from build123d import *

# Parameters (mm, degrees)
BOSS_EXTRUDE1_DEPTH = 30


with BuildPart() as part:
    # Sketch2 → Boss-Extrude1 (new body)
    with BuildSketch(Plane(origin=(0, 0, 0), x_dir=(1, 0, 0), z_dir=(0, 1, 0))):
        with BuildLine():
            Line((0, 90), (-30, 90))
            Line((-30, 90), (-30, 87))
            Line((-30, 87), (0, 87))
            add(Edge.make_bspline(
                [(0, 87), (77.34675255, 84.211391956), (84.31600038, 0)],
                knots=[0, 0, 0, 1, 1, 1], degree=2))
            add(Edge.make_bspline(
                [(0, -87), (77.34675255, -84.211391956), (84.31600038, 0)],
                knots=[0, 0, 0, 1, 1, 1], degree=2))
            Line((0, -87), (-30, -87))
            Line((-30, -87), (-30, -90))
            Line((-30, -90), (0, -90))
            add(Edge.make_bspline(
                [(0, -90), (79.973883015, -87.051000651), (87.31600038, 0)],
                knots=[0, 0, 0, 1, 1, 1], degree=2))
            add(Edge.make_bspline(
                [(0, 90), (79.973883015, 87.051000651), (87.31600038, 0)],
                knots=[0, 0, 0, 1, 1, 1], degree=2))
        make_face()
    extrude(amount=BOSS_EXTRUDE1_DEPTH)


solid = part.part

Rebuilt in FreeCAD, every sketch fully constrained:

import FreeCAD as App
import Part
import Sketcher

V = App.Vector

doc = App.newDocument("Part")
body = doc.addObject("PartDesign::Body", "Body")

sketch1 = doc.addObject("Sketcher::SketchObject", "Sketch")
body.addObject(sketch1)
sketch1.AttachmentSupport = (doc.XZ_Plane, [""])
sketch1.MapMode = "FlatFace"
sketch1.addGeometry([
    Part.LineSegment(V(0, -90, 0), V(-30, -90, 0)),
    Part.LineSegment(V(-30, -90, 0), V(-30, -87, 0)),
    Part.LineSegment(V(-30, -87, 0), V(0, -87, 0)),
    Part.BSplineCurve([V(0, -87, 0), V(77.346753, -84.211392, 0), V(84.316, 0, 0)], [3, 3], [0, 1], False, 2, [1, 1, 1], False),
    Part.BSplineCurve([V(0, 87, 0), V(77.346753, 84.211392, 0), V(84.316, 0, 0)], [3, 3], [0, 1], False, 2, [1, 1, 1], False),
    Part.LineSegment(V(0, 87, 0), V(-30, 87, 0)),
    Part.LineSegment(V(-30, 87, 0), V(-30, 90, 0)),
    Part.LineSegment(V(-30, 90, 0), V(0, 90, 0)),
    Part.BSplineCurve([V(0, 90, 0), V(79.973883, 87.051001, 0), V(87.316, 0, 0)], [3, 3], [0, 1], False, 2, [1, 1, 1], False),
    Part.BSplineCurve([V(0, -90, 0), V(79.973883, -87.051001, 0), V(87.316, 0, 0)], [3, 3], [0, 1], False, 2, [1, 1, 1], False),
], False)
sketch1.addConstraint([
    Sketcher.Constraint("Block", 3),
    Sketcher.Constraint("Block", 4),
    Sketcher.Constraint("Block", 8),
    Sketcher.Constraint("Block", 9),
    Sketcher.Constraint("Coincident", 0, 2, 1, 1),
    Sketcher.Constraint("Coincident", 1, 2, 2, 1),
    Sketcher.Constraint("Coincident", 2, 2, 3, 1),
    Sketcher.Constraint("Coincident", 4, 1, 5, 1),
    Sketcher.Constraint("Coincident", 5, 2, 6, 1),
    Sketcher.Constraint("Coincident", 6, 2, 7, 1),
    Sketcher.Constraint("Coincident", 7, 2, 8, 1),
    Sketcher.Constraint("Coincident", 9, 1, 0, 1),
    Sketcher.Constraint("Horizontal", 0),
    Sketcher.Constraint("Vertical", 1),
    Sketcher.Constraint("Horizontal", 2),
    Sketcher.Constraint("Horizontal", 5),
    Sketcher.Constraint("Vertical", 6),
    Sketcher.Constraint("Horizontal", 7),
    Sketcher.Constraint("Vertical", 1, 2, 5, 2),
    Sketcher.Constraint("DistanceX", 0, 2, 0, 1, 30.0),
])
pad1 = doc.addObject("PartDesign::Pad", "Pad")
body.addObject(pad1)
pad1.Profile = sketch1
pad1.Length = 30
pad1.Reversed = True

doc.recompute()
